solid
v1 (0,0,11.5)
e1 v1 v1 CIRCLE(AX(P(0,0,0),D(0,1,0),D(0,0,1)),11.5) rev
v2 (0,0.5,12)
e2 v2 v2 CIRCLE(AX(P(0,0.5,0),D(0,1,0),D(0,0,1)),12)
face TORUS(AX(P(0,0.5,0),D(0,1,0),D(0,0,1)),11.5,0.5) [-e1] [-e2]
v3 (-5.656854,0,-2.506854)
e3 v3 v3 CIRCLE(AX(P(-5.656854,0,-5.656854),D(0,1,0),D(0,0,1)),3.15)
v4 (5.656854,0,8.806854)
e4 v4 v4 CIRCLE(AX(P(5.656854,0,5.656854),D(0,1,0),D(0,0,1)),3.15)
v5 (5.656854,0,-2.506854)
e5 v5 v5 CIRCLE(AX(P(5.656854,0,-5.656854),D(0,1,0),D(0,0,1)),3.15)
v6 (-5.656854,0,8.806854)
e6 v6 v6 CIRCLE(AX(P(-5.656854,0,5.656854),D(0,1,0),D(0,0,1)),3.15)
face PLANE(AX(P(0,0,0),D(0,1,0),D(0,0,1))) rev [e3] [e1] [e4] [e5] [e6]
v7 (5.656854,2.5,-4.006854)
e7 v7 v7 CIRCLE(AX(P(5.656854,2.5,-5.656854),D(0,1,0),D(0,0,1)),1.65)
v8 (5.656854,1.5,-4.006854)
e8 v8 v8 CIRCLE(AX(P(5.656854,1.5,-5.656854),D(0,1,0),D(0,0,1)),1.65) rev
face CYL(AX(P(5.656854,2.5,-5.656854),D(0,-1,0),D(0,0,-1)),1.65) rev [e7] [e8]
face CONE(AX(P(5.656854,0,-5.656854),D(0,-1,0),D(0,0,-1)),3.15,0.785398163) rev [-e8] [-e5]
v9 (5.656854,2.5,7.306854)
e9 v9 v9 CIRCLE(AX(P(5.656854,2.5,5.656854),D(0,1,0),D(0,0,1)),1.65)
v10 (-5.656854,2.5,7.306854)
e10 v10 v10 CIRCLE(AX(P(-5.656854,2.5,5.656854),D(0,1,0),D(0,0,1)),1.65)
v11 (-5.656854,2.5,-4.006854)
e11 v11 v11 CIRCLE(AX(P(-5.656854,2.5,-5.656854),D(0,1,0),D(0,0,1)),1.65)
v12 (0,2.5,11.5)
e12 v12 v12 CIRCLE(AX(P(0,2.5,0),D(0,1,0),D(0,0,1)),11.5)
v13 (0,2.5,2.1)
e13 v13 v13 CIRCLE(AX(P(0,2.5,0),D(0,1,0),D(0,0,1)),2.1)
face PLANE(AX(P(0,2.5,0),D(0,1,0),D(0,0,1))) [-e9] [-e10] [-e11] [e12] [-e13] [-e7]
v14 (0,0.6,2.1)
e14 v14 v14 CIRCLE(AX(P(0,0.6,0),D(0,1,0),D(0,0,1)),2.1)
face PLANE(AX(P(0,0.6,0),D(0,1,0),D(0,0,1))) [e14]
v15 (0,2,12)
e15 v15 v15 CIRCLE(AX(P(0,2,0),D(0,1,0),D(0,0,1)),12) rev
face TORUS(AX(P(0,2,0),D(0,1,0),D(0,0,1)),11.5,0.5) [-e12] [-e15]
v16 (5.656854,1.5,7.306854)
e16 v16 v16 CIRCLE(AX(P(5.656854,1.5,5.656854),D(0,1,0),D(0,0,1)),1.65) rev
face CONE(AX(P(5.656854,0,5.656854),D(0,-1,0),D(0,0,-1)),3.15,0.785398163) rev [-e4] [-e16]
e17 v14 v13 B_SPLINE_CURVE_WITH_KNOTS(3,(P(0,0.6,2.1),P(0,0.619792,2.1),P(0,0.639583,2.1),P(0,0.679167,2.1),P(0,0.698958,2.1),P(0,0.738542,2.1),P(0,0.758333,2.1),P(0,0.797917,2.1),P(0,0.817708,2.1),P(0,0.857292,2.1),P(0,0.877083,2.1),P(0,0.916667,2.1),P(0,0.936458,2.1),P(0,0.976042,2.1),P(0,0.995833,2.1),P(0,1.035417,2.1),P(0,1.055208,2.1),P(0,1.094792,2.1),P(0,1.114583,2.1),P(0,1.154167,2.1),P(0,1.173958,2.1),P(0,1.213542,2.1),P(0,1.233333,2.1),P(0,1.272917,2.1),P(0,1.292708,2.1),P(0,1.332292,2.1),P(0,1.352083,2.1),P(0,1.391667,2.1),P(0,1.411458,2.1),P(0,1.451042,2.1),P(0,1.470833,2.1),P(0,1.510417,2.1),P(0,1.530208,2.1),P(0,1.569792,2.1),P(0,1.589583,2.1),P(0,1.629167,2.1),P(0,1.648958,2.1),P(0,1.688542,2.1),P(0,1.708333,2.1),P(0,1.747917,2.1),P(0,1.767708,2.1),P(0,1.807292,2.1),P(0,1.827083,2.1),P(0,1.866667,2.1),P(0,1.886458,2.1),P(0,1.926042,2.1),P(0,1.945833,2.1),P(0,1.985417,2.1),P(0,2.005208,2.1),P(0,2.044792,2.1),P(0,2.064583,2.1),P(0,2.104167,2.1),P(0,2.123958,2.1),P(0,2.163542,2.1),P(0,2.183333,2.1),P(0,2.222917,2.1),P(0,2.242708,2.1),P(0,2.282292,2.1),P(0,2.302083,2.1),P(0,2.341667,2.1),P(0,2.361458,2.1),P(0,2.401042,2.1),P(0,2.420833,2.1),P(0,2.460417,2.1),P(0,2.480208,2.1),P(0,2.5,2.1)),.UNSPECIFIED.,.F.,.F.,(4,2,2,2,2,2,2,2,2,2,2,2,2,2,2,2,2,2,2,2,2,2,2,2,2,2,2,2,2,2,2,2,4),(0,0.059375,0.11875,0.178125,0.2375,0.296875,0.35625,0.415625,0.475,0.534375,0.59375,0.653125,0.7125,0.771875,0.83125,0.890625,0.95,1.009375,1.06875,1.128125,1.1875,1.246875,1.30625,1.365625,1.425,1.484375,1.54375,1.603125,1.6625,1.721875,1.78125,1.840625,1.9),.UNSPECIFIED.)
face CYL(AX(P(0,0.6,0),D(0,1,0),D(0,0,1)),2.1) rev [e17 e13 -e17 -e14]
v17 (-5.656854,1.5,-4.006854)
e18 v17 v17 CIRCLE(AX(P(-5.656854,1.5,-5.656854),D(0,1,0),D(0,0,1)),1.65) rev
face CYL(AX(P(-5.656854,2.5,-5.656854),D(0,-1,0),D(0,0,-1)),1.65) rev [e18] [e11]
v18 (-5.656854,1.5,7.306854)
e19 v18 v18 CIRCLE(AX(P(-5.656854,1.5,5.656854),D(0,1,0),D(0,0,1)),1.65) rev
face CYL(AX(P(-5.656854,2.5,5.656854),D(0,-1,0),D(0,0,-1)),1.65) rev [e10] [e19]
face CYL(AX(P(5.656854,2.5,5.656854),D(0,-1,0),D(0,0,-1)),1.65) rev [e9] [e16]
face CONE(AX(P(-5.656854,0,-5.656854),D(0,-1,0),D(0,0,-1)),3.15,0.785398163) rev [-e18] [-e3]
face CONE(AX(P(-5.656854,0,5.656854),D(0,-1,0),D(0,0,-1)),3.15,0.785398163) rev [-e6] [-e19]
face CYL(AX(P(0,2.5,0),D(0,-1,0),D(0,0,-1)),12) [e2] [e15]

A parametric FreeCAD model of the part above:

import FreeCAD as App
import Part
import Sketcher

V = App.Vector
Q = App.Units.Quantity


def edges_at(feature, points):
    """Names of the edges that pass closest to the given points."""
    edges = feature.Shape.Edges
    near = lambda p: min(range(len(edges)), key=lambda i: edges[i].distToShape(Part.Vertex(*p))[0])
    return sorted({f"Edge{near(p) + 1}" for p in points})

doc = App.newDocument("Part")
body = doc.addObject("PartDesign::Body", "Body")

sketch1 = body.newObject("Sketcher::SketchObject", "Sketch")
sketch1.AttachmentSupport = (doc.getObject("XZ_Plane"), [""])
sketch1.MapMode = "FlatFace"
sketch1.addGeometry([
    Part.Circle(V(0, 0, 0), V(0, 0, 1), 12),
    Part.Circle(V(-5.7, -5.7, 0), V(0, 0, 1), 1.6),
    Part.Circle(V(-5.7, 5.7, 0), V(0, 0, 1), 1.6),
    Part.Circle(V(5.7, -5.7, 0), V(0, 0, 1), 1.6),
    Part.Circle(V(5.7, 5.7, 0), V(0, 0, 1), 1.6),
], False)
sketch1.addConstraint([
    Sketcher.Constraint("Coincident", 0, 3, -1, 1),
    Sketcher.Constraint("Equal", 1, 2),
    Sketcher.Constraint("Equal", 2, 3),
    Sketcher.Constraint("Equal", 3, 4),
    Sketcher.Constraint("Symmetric", 2, 3, 3, 3, -1, 1),
    Sketcher.Constraint("Symmetric", 1, 3, 4, 3, -1, 1),
    Sketcher.Constraint("Symmetric", 1, 3, 3, 3, -2),
    Sketcher.Constraint("Diameter", 0, Q("24 mm")),
    Sketcher.Constraint("Diameter", 1, Q("3.3 mm")),
    Sketcher.Constraint("DistanceY", 1, 3, 2, 3, Q("11.313708 mm")),
    Sketcher.Constraint("DistanceX", 1, 3, 3, 3, Q("11.313708 mm")),
])
pad1 = body.newObject("PartDesign::Pad", "Pad")
pad1.Profile = sketch1
pad1.Length = 2.5
pad1.Reversed = True

sketch2 = body.newObject("Sketcher::SketchObject", "Sketch001")
sketch2.AttachmentSupport = (doc.getObject("XZ_Plane"), [""])
sketch2.MapMode = "FlatFace"
sketch2.AttachmentOffset = App.Placement(V(0, 0, -2.5), App.Rotation())
sketch2.addGeometry(Part.Circle(V(0, 0, 0), V(0, 0, 1), 2.1), False)
sketch2.addConstraint([
    Sketcher.Constraint("Coincident", 0, 3, -1, 1),
    Sketcher.Constraint("Diameter", 0, Q("4.2 mm")),
])
pocket1 = body.newObject("PartDesign::Pocket", "Pocket")
pocket1.Profile = sketch2
pocket1.Length = 1.9
pocket1.Reversed = True
doc.recompute()

chamfer = body.newObject("PartDesign::Chamfer", "Chamfer")
chamfer.Base = (pocket1, edges_at(pocket1, [
    (5.657, 0, 4.007),
    (-5.657, 0, 4.007),
    (-5.657, 0, -7.307),
    (5.657, 0, -7.307),
]))
chamfer.Size = 1.5
doc.recompute()

fillet = body.newObject("PartDesign::Fillet", "Fillet")
fillet.Base = (chamfer, edges_at(chamfer, [(0, 0, -12), (0, 2.5, -12)]))
fillet.Radius = 0.5

doc.recompute()
